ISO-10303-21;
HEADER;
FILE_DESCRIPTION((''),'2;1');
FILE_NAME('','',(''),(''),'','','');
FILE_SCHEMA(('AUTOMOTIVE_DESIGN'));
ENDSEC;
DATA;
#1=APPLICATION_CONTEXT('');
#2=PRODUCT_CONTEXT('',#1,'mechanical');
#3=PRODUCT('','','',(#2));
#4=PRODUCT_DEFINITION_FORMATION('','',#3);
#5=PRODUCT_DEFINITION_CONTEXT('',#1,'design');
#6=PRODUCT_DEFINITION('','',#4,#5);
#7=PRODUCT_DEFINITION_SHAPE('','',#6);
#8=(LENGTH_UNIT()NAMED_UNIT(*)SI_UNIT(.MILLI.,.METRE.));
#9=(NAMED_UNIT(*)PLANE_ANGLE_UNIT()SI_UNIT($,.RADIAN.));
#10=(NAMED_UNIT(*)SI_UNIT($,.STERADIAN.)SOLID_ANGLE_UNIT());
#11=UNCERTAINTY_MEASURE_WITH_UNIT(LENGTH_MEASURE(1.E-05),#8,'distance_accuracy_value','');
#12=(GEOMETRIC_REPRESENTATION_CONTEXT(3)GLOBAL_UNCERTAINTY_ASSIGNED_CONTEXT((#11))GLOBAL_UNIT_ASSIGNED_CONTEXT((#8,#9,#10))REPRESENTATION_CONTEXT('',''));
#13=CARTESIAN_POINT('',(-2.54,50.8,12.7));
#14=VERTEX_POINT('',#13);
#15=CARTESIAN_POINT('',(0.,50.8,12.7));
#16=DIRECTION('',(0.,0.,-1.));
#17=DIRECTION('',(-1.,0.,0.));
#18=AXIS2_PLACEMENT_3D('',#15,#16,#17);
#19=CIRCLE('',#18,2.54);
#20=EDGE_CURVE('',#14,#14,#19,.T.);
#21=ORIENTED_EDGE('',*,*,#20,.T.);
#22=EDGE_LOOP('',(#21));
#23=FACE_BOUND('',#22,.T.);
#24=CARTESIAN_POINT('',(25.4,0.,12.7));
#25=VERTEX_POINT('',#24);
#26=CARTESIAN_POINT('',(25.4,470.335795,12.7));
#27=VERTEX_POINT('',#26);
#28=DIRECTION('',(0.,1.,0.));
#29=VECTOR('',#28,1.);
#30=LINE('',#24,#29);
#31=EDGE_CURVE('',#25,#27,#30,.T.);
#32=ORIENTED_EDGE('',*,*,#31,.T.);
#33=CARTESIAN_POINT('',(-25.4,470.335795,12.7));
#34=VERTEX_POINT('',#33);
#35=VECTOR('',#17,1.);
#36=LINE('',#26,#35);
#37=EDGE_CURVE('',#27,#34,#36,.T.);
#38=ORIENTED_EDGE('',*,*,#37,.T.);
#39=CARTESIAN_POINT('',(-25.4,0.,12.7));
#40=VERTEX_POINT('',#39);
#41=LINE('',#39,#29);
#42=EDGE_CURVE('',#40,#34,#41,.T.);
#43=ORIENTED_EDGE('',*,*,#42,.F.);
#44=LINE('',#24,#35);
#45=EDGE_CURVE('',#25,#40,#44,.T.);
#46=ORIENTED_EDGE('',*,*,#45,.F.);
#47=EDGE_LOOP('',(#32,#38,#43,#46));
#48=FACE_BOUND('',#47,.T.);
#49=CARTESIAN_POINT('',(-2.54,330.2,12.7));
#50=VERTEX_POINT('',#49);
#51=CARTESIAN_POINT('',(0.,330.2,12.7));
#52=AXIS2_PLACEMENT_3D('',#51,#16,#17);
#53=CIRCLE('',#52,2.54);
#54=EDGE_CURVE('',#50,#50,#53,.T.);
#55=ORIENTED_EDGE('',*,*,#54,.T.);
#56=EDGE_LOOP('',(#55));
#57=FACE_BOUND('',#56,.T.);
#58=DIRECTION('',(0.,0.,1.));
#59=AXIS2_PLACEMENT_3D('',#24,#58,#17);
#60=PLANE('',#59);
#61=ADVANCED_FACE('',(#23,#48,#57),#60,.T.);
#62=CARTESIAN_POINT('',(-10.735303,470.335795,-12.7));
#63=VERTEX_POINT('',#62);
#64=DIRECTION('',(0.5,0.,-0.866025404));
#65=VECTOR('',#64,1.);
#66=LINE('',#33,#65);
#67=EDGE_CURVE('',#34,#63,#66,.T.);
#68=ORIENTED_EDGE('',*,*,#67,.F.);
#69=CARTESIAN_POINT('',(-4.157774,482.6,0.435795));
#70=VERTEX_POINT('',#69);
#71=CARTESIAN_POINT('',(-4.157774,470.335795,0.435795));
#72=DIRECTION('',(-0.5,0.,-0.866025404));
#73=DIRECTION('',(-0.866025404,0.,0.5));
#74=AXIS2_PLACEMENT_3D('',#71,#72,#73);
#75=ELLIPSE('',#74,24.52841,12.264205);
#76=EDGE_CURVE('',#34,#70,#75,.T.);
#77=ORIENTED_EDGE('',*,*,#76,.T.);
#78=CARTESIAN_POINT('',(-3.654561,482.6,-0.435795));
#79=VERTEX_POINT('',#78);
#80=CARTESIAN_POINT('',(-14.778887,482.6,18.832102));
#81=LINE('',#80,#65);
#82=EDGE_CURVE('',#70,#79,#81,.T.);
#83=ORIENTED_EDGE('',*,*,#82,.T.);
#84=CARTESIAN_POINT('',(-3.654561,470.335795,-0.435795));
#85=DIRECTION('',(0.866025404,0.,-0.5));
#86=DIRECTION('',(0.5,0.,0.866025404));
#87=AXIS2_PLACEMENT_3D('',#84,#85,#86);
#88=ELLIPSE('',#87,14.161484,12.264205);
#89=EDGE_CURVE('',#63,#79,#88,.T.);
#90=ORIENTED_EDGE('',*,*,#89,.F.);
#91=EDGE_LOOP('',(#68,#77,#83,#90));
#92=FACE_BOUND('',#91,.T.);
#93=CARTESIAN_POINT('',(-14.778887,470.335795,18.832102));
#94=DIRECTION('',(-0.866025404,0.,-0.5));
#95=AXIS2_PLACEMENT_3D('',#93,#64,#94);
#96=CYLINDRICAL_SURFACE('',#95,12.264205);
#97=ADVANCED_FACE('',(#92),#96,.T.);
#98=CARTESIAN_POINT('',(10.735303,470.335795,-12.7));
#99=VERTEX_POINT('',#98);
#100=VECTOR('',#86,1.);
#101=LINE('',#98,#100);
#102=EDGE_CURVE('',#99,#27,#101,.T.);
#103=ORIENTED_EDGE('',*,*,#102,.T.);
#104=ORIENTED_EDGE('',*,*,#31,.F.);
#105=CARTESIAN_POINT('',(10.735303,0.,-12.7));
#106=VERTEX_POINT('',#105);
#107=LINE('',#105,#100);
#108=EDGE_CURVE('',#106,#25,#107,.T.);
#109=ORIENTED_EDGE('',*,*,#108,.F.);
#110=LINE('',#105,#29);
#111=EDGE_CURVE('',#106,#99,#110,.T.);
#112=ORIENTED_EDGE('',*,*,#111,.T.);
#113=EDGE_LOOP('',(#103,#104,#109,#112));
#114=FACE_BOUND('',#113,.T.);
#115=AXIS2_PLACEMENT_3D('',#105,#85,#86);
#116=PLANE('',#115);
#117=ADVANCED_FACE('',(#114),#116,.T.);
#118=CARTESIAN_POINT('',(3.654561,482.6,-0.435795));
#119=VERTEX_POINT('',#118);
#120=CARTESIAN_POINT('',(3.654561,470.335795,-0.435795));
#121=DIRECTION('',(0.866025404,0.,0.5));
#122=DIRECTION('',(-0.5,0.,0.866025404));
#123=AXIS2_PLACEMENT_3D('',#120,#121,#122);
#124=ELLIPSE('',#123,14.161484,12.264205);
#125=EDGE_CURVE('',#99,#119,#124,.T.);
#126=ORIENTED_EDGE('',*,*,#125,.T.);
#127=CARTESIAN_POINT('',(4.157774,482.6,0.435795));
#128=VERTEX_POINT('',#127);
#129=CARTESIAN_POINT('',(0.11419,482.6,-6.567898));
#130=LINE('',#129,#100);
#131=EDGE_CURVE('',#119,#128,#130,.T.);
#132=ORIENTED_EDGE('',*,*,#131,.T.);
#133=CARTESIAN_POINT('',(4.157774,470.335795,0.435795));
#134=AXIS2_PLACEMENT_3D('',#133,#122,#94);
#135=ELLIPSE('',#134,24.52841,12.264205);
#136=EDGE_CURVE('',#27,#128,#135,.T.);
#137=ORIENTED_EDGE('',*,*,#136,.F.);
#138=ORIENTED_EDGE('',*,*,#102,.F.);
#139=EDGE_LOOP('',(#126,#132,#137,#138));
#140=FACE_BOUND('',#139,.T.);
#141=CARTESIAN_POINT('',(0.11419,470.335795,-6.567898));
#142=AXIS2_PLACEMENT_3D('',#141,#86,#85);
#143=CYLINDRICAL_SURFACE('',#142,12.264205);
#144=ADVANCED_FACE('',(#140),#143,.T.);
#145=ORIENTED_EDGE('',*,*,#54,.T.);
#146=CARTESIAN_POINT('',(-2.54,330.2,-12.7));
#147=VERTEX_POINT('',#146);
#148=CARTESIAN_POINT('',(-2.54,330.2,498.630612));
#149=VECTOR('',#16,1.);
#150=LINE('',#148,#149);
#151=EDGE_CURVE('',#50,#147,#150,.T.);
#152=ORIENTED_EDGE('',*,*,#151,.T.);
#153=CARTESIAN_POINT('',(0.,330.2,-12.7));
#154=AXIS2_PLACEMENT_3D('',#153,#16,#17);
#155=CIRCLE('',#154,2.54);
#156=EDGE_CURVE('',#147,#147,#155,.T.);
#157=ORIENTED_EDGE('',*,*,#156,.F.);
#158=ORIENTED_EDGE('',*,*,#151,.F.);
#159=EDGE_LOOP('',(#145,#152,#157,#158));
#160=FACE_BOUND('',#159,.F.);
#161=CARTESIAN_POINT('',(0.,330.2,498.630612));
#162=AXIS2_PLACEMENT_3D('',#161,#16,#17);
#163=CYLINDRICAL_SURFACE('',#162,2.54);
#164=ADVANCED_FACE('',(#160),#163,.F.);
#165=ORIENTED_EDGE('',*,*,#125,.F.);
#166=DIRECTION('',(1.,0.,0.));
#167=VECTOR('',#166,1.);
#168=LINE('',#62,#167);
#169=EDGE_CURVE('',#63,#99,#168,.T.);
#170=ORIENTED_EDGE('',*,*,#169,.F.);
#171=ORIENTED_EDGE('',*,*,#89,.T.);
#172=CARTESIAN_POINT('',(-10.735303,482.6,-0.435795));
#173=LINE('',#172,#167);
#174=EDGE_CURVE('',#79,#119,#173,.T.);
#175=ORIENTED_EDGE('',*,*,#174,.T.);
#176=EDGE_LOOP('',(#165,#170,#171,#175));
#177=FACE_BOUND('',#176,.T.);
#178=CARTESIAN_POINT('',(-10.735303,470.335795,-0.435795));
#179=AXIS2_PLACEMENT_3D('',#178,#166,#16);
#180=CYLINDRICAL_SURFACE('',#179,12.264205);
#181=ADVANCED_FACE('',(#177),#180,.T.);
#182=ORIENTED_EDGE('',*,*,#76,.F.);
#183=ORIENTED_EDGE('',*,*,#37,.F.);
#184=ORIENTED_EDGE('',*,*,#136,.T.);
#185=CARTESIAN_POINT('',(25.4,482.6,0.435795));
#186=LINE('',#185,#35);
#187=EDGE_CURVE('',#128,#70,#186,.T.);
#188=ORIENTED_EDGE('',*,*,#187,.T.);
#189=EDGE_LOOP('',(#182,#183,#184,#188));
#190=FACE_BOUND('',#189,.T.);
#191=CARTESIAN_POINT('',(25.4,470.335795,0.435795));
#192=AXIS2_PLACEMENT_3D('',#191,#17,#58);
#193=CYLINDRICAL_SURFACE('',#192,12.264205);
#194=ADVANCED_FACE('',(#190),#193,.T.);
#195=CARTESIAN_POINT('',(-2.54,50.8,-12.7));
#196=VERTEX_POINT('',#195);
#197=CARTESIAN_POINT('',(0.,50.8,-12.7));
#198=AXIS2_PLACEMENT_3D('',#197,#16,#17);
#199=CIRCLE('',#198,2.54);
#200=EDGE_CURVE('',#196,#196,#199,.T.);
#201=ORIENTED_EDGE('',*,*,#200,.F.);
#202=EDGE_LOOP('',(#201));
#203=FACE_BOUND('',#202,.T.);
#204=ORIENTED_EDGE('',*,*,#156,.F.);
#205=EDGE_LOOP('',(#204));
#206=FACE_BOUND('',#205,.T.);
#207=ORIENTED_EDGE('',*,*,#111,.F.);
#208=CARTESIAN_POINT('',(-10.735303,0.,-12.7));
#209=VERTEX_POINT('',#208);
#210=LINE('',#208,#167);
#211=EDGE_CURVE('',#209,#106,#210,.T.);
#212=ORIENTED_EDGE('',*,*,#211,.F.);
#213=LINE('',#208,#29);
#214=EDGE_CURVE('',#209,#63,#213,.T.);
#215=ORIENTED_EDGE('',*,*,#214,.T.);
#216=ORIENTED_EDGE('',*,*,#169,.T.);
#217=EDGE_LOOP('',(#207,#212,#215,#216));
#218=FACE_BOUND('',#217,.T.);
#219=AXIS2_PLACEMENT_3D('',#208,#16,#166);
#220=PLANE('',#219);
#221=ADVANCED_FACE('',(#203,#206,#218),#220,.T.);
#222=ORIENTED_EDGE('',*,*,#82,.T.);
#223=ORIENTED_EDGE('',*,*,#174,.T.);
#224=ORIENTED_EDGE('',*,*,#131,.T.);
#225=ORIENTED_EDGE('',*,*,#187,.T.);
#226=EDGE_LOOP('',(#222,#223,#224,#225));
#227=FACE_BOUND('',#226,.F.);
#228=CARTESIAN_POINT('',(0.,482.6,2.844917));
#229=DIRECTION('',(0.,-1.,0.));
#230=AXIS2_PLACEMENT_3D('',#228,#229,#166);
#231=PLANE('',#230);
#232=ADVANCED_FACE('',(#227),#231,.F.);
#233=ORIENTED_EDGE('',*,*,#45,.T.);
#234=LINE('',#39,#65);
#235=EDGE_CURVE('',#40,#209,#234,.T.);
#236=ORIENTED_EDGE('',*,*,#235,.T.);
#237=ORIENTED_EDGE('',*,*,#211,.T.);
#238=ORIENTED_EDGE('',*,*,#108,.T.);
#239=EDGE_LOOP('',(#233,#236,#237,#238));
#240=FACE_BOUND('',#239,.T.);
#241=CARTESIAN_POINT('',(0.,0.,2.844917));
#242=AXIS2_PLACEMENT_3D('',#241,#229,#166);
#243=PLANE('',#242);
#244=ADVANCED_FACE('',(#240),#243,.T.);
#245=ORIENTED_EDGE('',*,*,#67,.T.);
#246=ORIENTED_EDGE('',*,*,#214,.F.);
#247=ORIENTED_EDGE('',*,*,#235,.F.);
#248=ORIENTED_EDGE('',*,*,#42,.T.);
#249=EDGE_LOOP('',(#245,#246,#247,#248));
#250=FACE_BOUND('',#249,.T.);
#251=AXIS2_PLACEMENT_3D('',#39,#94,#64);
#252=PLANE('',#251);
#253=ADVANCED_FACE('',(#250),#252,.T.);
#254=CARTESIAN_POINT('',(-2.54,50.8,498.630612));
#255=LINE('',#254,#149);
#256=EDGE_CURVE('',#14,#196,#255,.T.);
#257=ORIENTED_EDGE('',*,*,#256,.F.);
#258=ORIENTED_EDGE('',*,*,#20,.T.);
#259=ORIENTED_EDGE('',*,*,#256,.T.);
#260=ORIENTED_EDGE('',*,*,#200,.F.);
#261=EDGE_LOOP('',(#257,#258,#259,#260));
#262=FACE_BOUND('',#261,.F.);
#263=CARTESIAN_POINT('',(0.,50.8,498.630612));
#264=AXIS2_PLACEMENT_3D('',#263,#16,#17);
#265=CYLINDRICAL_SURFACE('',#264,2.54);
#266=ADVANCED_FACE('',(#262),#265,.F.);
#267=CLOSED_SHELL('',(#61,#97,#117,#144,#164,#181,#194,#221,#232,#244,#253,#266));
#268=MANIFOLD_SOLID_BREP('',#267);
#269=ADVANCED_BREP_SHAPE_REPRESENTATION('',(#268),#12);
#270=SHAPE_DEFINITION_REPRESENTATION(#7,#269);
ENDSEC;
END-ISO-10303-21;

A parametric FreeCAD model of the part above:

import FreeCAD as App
import Part
import Sketcher
from FreeCAD import Vector
Q = App.Units.Quantity


def edges_at(feature, points):
    """Names of the edges that pass closest to the given points."""
    edges = feature.Shape.Edges
    near = lambda p: min(range(len(edges)), key=lambda i: edges[i].distToShape(Part.Vertex(*p))[0])
    return sorted({f"Edge{near(p) + 1}" for p in points})


def add_polygon(sketch, points):
    """Adds a closed chain of lines whose ends are joined by coincident constraints."""
    first, n = sketch.GeometryCount, len(points)
    for a, b in zip(points, points[1:] + points[:1]):
        sketch.addGeometry(Part.LineSegment(App.Vector(*a, 0), App.Vector(*b, 0)), False)
    for i in range(n):
        sketch.addConstraint(Sketcher.Constraint("Coincident", first + i, 2, first + (i + 1) % n, 1))

doc = App.newDocument("Part")
body = doc.addObject("PartDesign::Body", "Body")

sketch1 = body.newObject("Sketcher::SketchObject", "Sketch")
sketch1.AttachmentSupport = (doc.getObject("XZ_Plane"), [""])
sketch1.MapMode = "FlatFace"
add_polygon(sketch1, [(25, 13), (-25, 13), (-11, -13), (11, -13)])
sketch1.addConstraint(Sketcher.Constraint("Horizontal", 0))
sketch1.addConstraint(Sketcher.Constraint("Horizontal", 2))
sketch1.addConstraint(Sketcher.Constraint("Equal", 1, 3))
sketch1.addConstraint(Sketcher.Constraint("DistanceX", 0, 2, 0, 1, Q("2 in")))
sketch1.addConstraint(Sketcher.Constraint("DistanceX", 0, 2, -1, 1, Q("1 in")))
sketch1.addConstraint(Sketcher.Constraint("Angle", 1, Q("-60 deg")))
sketch1.addConstraint(Sketcher.Constraint("DistanceY", 1, 2, 0, 2, Q("1 in")))
sketch1.addConstraint(Sketcher.Constraint("DistanceY", -1, 1, 0, 2, Q("0.5 in")))
pad1 = body.newObject("PartDesign::Pad", "Pad")
pad1.Profile = sketch1
pad1.Length = Q("19 in")
pad1.Reversed = True
doc.recompute()

fillet = body.newObject("PartDesign::Fillet", "Fillet")
fillet.Base = (pad1, edges_at(pad1, [
    (0, 482.6, 12.7),
    (18.068, 482.6, 0),
    (0, 482.6, -12.7),
    (-18.068, 482.6, 0),
]))
fillet.Radius = 12.264205

sketch2 = body.newObject("Sketcher::SketchObject", "Sketch001")
sketch2.AttachmentSupport = (doc.getObject("XY_Plane"), [""])
sketch2.MapMode = "FlatFace"
sketch2.AttachmentOffset = App.Placement(Vector(0, 0, 0.5 * 25.4), App.Rotation())
sketch2.addGeometry(Part.Circle(Vector(0, 330.2, 0), Vector(0, 0, 1), 2.5), False)
sketch2.addGeometry(Part.Circle(Vector(0, 50.8, 0), Vector(0, 0, 1), 2.5), False)
sketch2.addConstraint(Sketcher.Constraint("Equal", 0, 1))
sketch2.addConstraint(Sketcher.Constraint("PointOnObject", 0, 3, -2))
sketch2.addConstraint(Sketcher.Constraint("PointOnObject", 1, 3, -2))
sketch2.addConstraint(Sketcher.Constraint("Diameter", 0, Q("0.2 in")))
sketch2.addConstraint(Sketcher.Constraint("DistanceY", -1, 1, 0, 3, Q("13 in")))
sketch2.addConstraint(Sketcher.Constraint("DistanceY", -1, 1, 1, 3, Q("2 in")))
doc.recompute()
hole = body.newObject("PartDesign::Hole", "Hole")
hole.Profile = sketch2
hole.ThreadType = "None"
hole.Diameter = Q("0.2 in")
hole.DepthType = "ThroughAll"

doc.recompute()
